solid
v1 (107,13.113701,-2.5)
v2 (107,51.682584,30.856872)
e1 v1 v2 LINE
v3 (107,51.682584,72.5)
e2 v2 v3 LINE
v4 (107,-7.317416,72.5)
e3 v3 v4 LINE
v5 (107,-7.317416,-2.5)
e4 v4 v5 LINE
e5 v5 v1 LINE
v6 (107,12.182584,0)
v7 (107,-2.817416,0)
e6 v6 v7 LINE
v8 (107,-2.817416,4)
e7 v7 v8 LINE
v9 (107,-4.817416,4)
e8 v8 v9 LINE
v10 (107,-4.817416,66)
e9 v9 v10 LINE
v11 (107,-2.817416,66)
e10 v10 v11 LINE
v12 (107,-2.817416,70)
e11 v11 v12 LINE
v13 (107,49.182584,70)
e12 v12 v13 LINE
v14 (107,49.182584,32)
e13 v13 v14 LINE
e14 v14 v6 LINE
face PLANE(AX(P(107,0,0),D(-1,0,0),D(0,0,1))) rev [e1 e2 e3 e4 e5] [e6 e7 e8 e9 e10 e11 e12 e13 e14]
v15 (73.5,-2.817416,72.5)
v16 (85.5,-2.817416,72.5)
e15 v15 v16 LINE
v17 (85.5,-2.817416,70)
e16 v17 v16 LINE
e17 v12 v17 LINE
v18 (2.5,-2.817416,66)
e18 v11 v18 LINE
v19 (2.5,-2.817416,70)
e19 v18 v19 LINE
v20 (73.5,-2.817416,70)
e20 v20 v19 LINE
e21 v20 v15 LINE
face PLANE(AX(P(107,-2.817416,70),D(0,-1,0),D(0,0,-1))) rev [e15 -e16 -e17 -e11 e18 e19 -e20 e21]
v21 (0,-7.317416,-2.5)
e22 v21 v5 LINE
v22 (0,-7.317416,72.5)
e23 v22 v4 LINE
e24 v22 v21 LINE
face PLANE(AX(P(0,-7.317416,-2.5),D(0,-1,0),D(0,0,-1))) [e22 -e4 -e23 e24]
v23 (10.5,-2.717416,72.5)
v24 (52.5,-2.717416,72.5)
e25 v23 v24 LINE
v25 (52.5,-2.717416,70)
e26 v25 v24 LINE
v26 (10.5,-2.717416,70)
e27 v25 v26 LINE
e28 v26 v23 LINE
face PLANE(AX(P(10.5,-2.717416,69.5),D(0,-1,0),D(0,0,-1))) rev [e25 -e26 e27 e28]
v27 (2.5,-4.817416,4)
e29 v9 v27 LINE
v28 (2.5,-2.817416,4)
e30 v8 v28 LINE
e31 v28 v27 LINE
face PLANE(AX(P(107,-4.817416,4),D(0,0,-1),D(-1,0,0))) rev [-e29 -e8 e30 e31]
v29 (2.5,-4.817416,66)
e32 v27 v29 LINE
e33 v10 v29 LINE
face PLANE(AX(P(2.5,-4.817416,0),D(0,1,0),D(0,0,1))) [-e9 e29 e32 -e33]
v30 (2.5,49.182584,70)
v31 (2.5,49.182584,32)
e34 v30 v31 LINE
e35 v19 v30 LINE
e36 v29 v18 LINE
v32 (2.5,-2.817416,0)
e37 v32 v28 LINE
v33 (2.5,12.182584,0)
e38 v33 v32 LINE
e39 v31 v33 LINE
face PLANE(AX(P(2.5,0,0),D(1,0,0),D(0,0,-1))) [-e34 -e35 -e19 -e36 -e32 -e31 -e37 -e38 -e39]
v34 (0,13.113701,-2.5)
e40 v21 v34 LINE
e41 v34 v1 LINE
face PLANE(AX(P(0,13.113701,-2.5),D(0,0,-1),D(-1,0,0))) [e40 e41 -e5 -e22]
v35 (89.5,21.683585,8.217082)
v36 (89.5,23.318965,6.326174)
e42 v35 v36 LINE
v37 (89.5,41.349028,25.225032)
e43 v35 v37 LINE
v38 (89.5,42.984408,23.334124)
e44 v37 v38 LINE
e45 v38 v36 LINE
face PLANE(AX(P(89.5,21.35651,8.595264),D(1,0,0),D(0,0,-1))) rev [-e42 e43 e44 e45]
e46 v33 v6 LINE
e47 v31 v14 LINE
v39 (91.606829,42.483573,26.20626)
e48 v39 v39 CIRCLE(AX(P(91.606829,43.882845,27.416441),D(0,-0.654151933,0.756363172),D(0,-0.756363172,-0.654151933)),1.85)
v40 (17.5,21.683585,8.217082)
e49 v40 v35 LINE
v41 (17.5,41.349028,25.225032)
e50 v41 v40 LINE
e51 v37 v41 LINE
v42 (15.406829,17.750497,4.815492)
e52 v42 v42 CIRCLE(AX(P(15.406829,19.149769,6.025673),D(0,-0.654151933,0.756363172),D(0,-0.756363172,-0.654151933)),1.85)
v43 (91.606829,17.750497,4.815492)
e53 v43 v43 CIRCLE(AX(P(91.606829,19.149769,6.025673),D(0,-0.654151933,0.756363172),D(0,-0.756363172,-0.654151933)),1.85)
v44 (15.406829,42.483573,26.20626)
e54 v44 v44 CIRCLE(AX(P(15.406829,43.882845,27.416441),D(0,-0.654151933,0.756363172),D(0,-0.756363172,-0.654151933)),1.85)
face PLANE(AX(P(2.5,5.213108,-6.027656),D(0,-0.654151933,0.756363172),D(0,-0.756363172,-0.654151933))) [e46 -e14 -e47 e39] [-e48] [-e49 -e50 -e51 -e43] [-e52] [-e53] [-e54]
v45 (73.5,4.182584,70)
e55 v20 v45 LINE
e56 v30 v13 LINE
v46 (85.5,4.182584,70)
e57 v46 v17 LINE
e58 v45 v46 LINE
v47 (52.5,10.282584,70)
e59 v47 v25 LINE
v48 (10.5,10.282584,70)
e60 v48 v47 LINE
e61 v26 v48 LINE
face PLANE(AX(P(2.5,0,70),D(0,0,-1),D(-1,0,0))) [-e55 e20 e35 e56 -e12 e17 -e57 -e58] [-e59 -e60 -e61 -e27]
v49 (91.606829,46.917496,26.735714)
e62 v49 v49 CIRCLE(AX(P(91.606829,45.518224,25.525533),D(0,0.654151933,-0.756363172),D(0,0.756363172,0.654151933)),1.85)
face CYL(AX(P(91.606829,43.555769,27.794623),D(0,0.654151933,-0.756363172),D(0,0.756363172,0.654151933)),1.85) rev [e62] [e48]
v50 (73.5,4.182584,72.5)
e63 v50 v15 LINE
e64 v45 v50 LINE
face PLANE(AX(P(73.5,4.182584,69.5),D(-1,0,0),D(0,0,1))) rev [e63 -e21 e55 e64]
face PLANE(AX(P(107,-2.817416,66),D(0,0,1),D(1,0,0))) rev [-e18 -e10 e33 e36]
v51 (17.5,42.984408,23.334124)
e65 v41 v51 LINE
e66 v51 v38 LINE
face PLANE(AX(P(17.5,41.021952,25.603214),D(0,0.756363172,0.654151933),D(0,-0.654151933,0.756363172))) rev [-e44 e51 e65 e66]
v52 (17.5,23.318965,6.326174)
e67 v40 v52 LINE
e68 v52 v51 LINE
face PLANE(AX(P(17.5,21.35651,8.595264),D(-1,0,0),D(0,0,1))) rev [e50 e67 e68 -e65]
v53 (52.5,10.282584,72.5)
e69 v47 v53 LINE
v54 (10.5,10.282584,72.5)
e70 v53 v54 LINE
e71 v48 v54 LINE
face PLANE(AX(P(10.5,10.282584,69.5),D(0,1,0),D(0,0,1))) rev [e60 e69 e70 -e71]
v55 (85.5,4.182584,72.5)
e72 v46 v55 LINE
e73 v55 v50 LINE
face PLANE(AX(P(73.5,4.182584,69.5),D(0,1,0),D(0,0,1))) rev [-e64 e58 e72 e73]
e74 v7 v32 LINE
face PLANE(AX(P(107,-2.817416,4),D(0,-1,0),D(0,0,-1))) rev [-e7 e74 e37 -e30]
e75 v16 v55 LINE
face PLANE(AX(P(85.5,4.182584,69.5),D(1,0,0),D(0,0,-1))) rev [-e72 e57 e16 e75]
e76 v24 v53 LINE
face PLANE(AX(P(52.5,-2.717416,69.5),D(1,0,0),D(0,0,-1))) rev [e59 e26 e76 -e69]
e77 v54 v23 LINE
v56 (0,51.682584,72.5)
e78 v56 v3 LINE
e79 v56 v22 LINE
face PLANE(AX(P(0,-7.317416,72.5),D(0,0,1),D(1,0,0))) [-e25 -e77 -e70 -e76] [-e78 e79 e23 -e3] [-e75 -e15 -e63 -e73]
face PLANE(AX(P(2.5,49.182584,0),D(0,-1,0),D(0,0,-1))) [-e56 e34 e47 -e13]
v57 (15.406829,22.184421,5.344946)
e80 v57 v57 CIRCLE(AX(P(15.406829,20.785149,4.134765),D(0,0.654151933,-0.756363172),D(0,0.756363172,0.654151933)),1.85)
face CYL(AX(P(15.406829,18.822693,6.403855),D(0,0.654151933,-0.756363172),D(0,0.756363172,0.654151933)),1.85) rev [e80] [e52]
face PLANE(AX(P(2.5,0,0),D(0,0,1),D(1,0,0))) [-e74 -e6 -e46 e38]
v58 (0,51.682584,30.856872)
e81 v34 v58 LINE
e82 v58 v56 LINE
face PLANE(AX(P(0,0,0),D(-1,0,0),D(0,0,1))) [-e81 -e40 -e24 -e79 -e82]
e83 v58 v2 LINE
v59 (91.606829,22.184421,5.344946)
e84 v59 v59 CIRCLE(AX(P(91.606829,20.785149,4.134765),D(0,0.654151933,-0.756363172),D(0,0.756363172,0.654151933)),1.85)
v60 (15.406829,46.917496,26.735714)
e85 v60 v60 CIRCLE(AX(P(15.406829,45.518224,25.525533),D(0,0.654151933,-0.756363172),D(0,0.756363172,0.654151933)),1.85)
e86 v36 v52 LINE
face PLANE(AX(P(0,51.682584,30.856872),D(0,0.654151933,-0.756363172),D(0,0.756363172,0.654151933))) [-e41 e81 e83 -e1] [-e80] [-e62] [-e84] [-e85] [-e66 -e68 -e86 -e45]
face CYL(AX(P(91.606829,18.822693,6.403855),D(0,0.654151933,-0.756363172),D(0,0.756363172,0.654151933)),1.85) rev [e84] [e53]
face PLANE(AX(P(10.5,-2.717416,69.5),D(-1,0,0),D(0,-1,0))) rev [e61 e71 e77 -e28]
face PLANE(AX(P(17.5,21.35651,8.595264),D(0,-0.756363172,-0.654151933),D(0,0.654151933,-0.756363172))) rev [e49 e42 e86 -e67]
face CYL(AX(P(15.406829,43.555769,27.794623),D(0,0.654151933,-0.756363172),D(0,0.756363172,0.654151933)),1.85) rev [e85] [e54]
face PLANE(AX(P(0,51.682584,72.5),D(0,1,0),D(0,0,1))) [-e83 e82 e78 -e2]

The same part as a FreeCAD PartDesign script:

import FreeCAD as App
import Part
import Sketcher

V = App.Vector
Q = App.Units.Quantity


def add_polygon(sketch, points):
    """Adds a closed chain of lines whose ends are joined by coincident constraints."""
    first, n = sketch.GeometryCount, len(points)
    for a, b in zip(points, points[1:] + points[:1]):
        sketch.addGeometry(Part.LineSegment(App.Vector(*a, 0), App.Vector(*b, 0)), False)
    for i in range(n):
        sketch.addConstraint(Sketcher.Constraint("Coincident", first + i, 2, first + (i + 1) % n, 1))

doc = App.newDocument("Part")
body = doc.addObject("PartDesign::Body", "Body")

# Sketch on YZ plane
sketch1 = body.newObject("Sketcher::SketchObject", "Sketch")
sketch1.AttachmentSupport = (doc.getObject("YZ_Plane"), [""])
sketch1.MapMode = "FlatFace"
add_polygon(sketch1, [(49, 32), (49, 70), (-5, 70), (-5, 0), (12, 0)])  # lines 0-4
sketch1.addConstraint([
    Sketcher.Constraint("Vertical", 0),
    Sketcher.Constraint("Horizontal", 1),
    Sketcher.Constraint("Vertical", 2),
    Sketcher.Constraint("Horizontal", 3),
    Sketcher.Constraint("PointOnObject", 2, 2, -1),
    Sketcher.Constraint("DistanceX", 1, 2, 1, 1, Q("54 mm")),
    Sketcher.Constraint("DistanceX", 3, 1, 3, 2, Q("17 mm")),
    Sketcher.Constraint("DistanceY", 0, 1, 0, 2, Q("38 mm")),
    Sketcher.Constraint("DistanceY", 2, 2, 2, 1, Q("70 mm")),
    Sketcher.Constraint("DistanceX", -1, 1, 0, 2, Q("49.182584 mm")),
])
pad1 = body.newObject("PartDesign::Pad", "Pad")
pad1.Profile = sketch1
pad1.Length = 107

# Sketch on YZ plane
sketch2 = body.newObject("Sketcher::SketchObject", "Sketch001")
sketch2.AttachmentSupport = (doc.getObject("YZ_Plane"), [""])
sketch2.MapMode = "FlatFace"
sketch2.AttachmentOffset = App.Placement(V(0, 0, 107), App.Rotation())
add_polygon(sketch2, [(52, 72), (-7, 72), (-7, -2), (13, -2), (52, 31)])  # lines 0-4
add_polygon(sketch2, [(49, 70), (49, 32), (12, 0), (-5, 0), (-5, 70)])  # lines 5-9
sketch2.addConstraint([
    Sketcher.Constraint("Horizontal", 0),
    Sketcher.Constraint("Vertical", 1),
    Sketcher.Constraint("Horizontal", 2),
    Sketcher.Constraint("Vertical", 4),
    Sketcher.Constraint("Vertical", 5),
    Sketcher.Constraint("Horizontal", 7),
    Sketcher.Constraint("Vertical", 8),
    Sketcher.Constraint("Horizontal", 9),
    Sketcher.Constraint("PointOnObject", 6, 2, -1),
    Sketcher.Constraint("Parallel", 3, 6),
    Sketcher.Constraint("DistanceX", 0, 2, 0, 1, Q("59 mm")),
    Sketcher.Constraint("DistanceX", 7, 2, 7, 1, Q("17 mm")),
    Sketcher.Constraint("DistanceX", 9, 1, 9, 2, Q("54 mm")),
    Sketcher.Constraint("DistanceY", 1, 2, 1, 1, Q("75 mm")),
    Sketcher.Constraint("DistanceY", 5, 2, 5, 1, Q("38 mm")),
    Sketcher.Constraint("DistanceY", 8, 1, 8, 2, Q("70 mm")),
    Sketcher.Constraint("DistanceY", -1, 1, 0, 2, Q("72.5 mm")),
    Sketcher.Constraint("DistanceX", 5, 2, 3, 2, Q("2.5 mm")),
    Sketcher.Constraint("DistanceY", 4, 1, 4, 2, Q("41.643128 mm")),
    Sketcher.Constraint("DistanceX", -1, 1, 2, 2, Q("13.113701 mm")),
])
pad2 = body.newObject("PartDesign::Pad", "Pad001")
pad2.Profile = sketch2
pad2.Length = 107
pad2.Reversed = True

# Sketch on YZ plane
sketch3 = body.newObject("Sketcher::SketchObject", "Sketch002")
sketch3.AttachmentSupport = (doc.getObject("YZ_Plane"), [""])
sketch3.MapMode = "FlatFace"
sketch3.AttachmentOffset = App.Placement(V(0, 0, 107), App.Rotation())
add_polygon(sketch3, [(-5, 70), (-5, 0), (12, 0), (49, 32), (49, 70)])  # lines 0-4
sketch3.addConstraint([
    Sketcher.Constraint("Vertical", 0),
    Sketcher.Constraint("Horizontal", 1),
    Sketcher.Constraint("Vertical", 3),
    Sketcher.Constraint("Horizontal", 4),
    Sketcher.Constraint("PointOnObject", 0, 2, -1),
    Sketcher.Constraint("DistanceX", 1, 1, 1, 2, Q("17 mm")),
    Sketcher.Constraint("DistanceX", 4, 2, 4, 1, Q("54 mm")),
    Sketcher.Constraint("DistanceY", 0, 2, 0, 1, Q("70 mm")),
    Sketcher.Constraint("DistanceY", 3, 1, 3, 2, Q("38 mm")),
    Sketcher.Constraint("DistanceX", 0, 2, -1, 1, Q("4.817416 mm")),
])
pocket1 = body.newObject("PartDesign::Pocket", "Pocket")
pocket1.Profile = sketch3
pocket1.Length = 104.5

# Sketch on YZ plane
sketch4 = body.newObject("Sketcher::SketchObject", "Sketch003")
sketch4.AttachmentSupport = (doc.getObject("YZ_Plane"), [""])
sketch4.MapMode = "FlatFace"
sketch4.AttachmentOffset = App.Placement(V(0, 0, 2.5), App.Rotation())
add_polygon(sketch4, [(-2.8, 70), (-4.8, 70), (-4.8, 66), (-2.8, 66)])  # lines 0-3
add_polygon(sketch4, [(-2.8, 4), (-4.8, 4), (-4.8, 0), (-2.8, 0)])  # lines 4-7
sketch4.addConstraint([
    Sketcher.Constraint("Horizontal", 0),
    Sketcher.Constraint("Vertical", 1),
    Sketcher.Constraint("Horizontal", 2),
    Sketcher.Constraint("Vertical", 3),
    Sketcher.Constraint("Horizontal", 4),
    Sketcher.Constraint("Vertical", 5),
    Sketcher.Constraint("Horizontal", 6),
    Sketcher.Constraint("Vertical", 7),
    Sketcher.Constraint("PointOnObject", 5, 2, -1),
    Sketcher.Constraint("Vertical", 1, 2, 4, 2),
    Sketcher.Constraint("Vertical", 3, 2, 6, 2),
    Sketcher.Constraint("Equal", 3, 5),
    Sketcher.Constraint("DistanceX", 0, 2, 0, 1, Q("2 mm")),
    Sketcher.Constraint("DistanceY", 1, 2, 1, 1, Q("4 mm")),
    Sketcher.Constraint("DistanceY", -1, 1, 0, 2, Q("70 mm")),
    Sketcher.Constraint("DistanceX", 0, 2, -1, 1, Q("4.817416 mm")),
])
pad3 = body.newObject("PartDesign::Pad", "Pad002")
pad3.Profile = sketch4
pad3.Length = 104.5

# Sketch on XY plane
sketch5 = body.newObject("Sketcher::SketchObject", "Sketch004")
sketch5.AttachmentSupport = (doc.getObject("XY_Plane"), [""])
sketch5.MapMode = "FlatFace"
sketch5.AttachmentOffset = App.Placement(V(0, 0, 72.5), App.Rotation())
add_polygon(sketch5, [(10, 10), (10, -3), (52, -3), (52, 10)])  # lines 0-3
sketch5.addConstraint([
    Sketcher.Constraint("Vertical", 0),
    Sketcher.Constraint("Horizontal", 1),
    Sketcher.Constraint("Vertical", 2),
    Sketcher.Constraint("Horizontal", 3),
    Sketcher.Constraint("DistanceX", 1, 1, 1, 2, Q("42 mm")),
    Sketcher.Constraint("DistanceY", 0, 2, 0, 1, Q("13 mm")),
    Sketcher.Constraint("DistanceX", -1, 1, 0, 2, Q("10.5 mm")),
    Sketcher.Constraint("DistanceY", 0, 2, -1, 1, Q("2.717416 mm")),
])
pocket2 = body.newObject("PartDesign::Pocket", "Pocket001")
pocket2.Profile = sketch5
pocket2.Length = 3

# Sketch on XY plane
sketch6 = body.newObject("Sketcher::SketchObject", "Sketch005")
sketch6.AttachmentSupport = (doc.getObject("XY_Plane"), [""])
sketch6.MapMode = "FlatFace"
sketch6.AttachmentOffset = App.Placement(V(0, 0, 72.5), App.Rotation())
add_polygon(sketch6, [(74, 4), (74, -3), (86, -3), (86, 4)])  # lines 0-3
sketch6.addConstraint([
    Sketcher.Constraint("Vertical", 0),
    Sketcher.Constraint("Horizontal", 1),
    Sketcher.Constraint("Vertical", 2),
    Sketcher.Constraint("Horizontal", 3),
    Sketcher.Constraint("DistanceX", 1, 1, 1, 2, Q("12 mm")),
    Sketcher.Constraint("DistanceY", 0, 2, 0, 1, Q("7 mm")),
    Sketcher.Constraint("DistanceX", -1, 1, 0, 2, Q("73.5 mm")),
    Sketcher.Constraint("DistanceY", 0, 2, -1, 1, Q("2.817416 mm")),
])
pocket3 = body.newObject("PartDesign::Pocket", "Pocket002")
pocket3.Profile = sketch6
pocket3.Length = 3

# Sketch on an angled plane
sketch7 = body.newObject("Sketcher::SketchObject", "Sketch006")
sketch7.Placement = App.Placement(V(0, 6.848487, -7.918564), App.Rotation(V(-1, 0, 0), V(0, 0.756363172, 0.654151933), V(0, 0.654151933, -0.756363172), "ZXY"))
add_polygon(sketch7, [(-90, 48), (-90, 22), (-18, 22), (-18, 48)])  # lines 0-3
sketch7.addConstraint([
    Sketcher.Constraint("Vertical", 0),
    Sketcher.Constraint("Horizontal", 1),
    Sketcher.Constraint("Vertical", 2),
    Sketcher.Constraint("Horizontal", 3),
    Sketcher.Constraint("DistanceX", 1, 1, 1, 2, Q("72 mm")),
    Sketcher.Constraint("DistanceY", 0, 2, 0, 1, Q("26 mm")),
    Sketcher.Constraint("DistanceX", 0, 2, -1, 1, Q("89.5 mm")),
    Sketcher.Constraint("DistanceY", -1, 1, 0, 2, Q("21.775886 mm")),
])
pocket4 = body.newObject("PartDesign::Pocket", "Pocket003")
pocket4.Profile = sketch7
pocket4.Length = 3

# Sketch on an angled plane
sketch8 = body.newObject("Sketcher::SketchObject", "Sketch007")
sketch8.Placement = App.Placement(V(0, 6.848487, -7.918564), App.Rotation(V(-1, 0, 0), V(0, 0.756363172, 0.654151933), V(0, 0.654151933, -0.756363172), "ZXY"))
sketch8.addGeometry([
    Part.Circle(V(-91.6, 51.1, 0), V(0, 0, 1), 1.9),
    Part.Circle(V(-15.4, 51.1, 0), V(0, 0, 1), 1.9),
    Part.Circle(V(-15.4, 18.4, 0), V(0, 0, 1), 1.9),
    Part.Circle(V(-91.6, 18.4, 0), V(0, 0, 1), 1.9),
], False)
sketch8.addConstraint([
    Sketcher.Constraint("Equal", 0, 1),
    Sketcher.Constraint("Equal", 1, 2),
    Sketcher.Constraint("Equal", 2, 3),
    Sketcher.Constraint("Horizontal", 0, 3, 1, 3),
    Sketcher.Constraint("Horizontal", 2, 3, 3, 3),
    Sketcher.Constraint("Vertical", 1, 3, 2, 3),
    Sketcher.Constraint("Vertical", 0, 3, 3, 3),
    Sketcher.Constraint("Diameter", 0, Q("3.7 mm")),
    Sketcher.Constraint("DistanceX", 0, 3, 1, 3, Q("76.2 mm")),
    Sketcher.Constraint("DistanceY", 2, 3, 1, 3, Q("32.7 mm")),
    Sketcher.Constraint("DistanceX", 0, 3, -1, 1, Q("91.606829 mm")),
    Sketcher.Constraint("DistanceY", -1, 1, 0, 3, Q("51.125886 mm")),
])
pocket5 = body.newObject("PartDesign::Pocket", "Pocket004")
pocket5.Profile = sketch8
pocket5.Length = 3

doc.recompute()
